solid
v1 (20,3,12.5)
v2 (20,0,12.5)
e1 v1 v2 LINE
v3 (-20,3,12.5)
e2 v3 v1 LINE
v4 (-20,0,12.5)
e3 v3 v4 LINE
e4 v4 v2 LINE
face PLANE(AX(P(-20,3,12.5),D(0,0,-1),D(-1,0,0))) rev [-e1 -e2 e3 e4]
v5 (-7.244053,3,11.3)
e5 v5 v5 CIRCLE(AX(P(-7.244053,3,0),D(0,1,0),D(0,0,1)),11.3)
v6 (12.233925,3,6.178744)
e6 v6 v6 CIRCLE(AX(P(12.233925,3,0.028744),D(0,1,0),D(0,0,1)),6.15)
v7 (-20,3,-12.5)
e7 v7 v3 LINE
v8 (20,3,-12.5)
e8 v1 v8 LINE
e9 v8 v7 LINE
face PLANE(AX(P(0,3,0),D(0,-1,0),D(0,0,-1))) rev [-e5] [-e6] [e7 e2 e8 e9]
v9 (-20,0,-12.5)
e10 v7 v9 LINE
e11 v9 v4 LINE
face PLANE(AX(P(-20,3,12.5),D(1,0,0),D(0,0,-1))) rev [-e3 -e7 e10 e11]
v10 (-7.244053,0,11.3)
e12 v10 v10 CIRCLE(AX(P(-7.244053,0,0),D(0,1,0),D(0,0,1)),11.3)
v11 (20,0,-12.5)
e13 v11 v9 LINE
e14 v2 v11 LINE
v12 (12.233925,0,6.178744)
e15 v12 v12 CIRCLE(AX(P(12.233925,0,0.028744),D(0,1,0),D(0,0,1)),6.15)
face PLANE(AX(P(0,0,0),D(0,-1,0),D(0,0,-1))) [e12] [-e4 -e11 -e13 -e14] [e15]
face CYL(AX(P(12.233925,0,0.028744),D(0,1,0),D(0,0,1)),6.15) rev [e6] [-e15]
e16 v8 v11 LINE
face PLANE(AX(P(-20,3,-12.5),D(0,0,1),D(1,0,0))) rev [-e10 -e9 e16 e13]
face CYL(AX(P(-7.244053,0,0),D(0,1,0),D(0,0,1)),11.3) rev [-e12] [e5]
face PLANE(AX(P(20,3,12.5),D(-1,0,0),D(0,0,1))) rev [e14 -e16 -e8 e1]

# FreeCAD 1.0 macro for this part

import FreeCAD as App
import Part
import Sketcher

V = App.Vector
Q = App.Units.Quantity


def add_polygon(sketch, points):
    """Adds a closed chain of lines whose ends are joined by coincident constraints."""
    first, n = sketch.GeometryCount, len(points)
    for a, b in zip(points, points[1:] + points[:1]):
        sketch.addGeometry(Part.LineSegment(App.Vector(*a, 0), App.Vector(*b, 0)), False)
    for i in range(n):
        sketch.addConstraint(Sketcher.Constraint("Coincident", first + i, 2, first + (i + 1) % n, 1))

doc = App.newDocument("Part")
body = doc.addObject("PartDesign::Body", "Body")

# Sketch on XZ plane
sketch1 = body.newObject("Sketcher::SketchObject", "Sketch")
sketch1.AttachmentSupport = (doc.getObject("XZ_Plane"), [""])
sketch1.MapMode = "FlatFace"
add_polygon(sketch1, [(-20, -12), (-20, 12), (20, 12), (20, -12)])  # lines 0-3
sketch1.addConstraint(Sketcher.Constraint("Vertical", 0))
sketch1.addConstraint(Sketcher.Constraint("Horizontal", 1))
sketch1.addConstraint(Sketcher.Constraint("Vertical", 2))
sketch1.addConstraint(Sketcher.Constraint("Horizontal", 3))
sketch1.addConstraint(Sketcher.Constraint("Symmetric", 0, 2, 2, 2, -1, 1))
sketch1.addConstraint(Sketcher.Constraint("DistanceX", 1, 1, 1, 2, Q("40 mm")))
sketch1.addConstraint(Sketcher.Constraint("DistanceY", 0, 1, 0, 2, Q("25 mm")))
pad1 = body.newObject("PartDesign::Pad", "Pad")
pad1.Profile = sketch1
pad1.Length = 3
pad1.Reversed = True

# Sketch on XZ plane
sketch2 = body.newObject("Sketcher::SketchObject", "Sketch001")
sketch2.AttachmentSupport = (doc.getObject("XZ_Plane"), [""])
sketch2.MapMode = "FlatFace"
sketch2.AttachmentOffset = App.Placement(V(0, 0, -3), App.Rotation())
sketch2.addGeometry(Part.Circle(V(-7, 0, 0), V(0, 0, 1), 11), False)
sketch2.addGeometry(Part.Circle(V(12, 0, 0), V(0, 0, 1), 6), False)
sketch2.addConstraint(Sketcher.Constraint("PointOnObject", 0, 3, -1))
sketch2.addConstraint(Sketcher.Constraint("Diameter", 0, Q("22.6 mm")))
sketch2.addConstraint(Sketcher.Constraint("Diameter", 1, Q("12.3 mm")))
sketch2.addConstraint(Sketcher.Constraint("DistanceX", 0, 3, -1, 1, Q("7.244053 mm")))
sketch2.addConstraint(Sketcher.Constraint("DistanceX", -1, 1, 1, 3, Q("12.233925 mm")))
sketch2.addConstraint(Sketcher.Constraint("DistanceY", -1, 1, 1, 3, Q("0.028744 mm")))
pocket1 = body.newObject("PartDesign::Pocket", "Pocket")
pocket1.Profile = sketch2
pocket1.Type = "ThroughAll"
pocket1.Reversed = True

doc.recompute()
